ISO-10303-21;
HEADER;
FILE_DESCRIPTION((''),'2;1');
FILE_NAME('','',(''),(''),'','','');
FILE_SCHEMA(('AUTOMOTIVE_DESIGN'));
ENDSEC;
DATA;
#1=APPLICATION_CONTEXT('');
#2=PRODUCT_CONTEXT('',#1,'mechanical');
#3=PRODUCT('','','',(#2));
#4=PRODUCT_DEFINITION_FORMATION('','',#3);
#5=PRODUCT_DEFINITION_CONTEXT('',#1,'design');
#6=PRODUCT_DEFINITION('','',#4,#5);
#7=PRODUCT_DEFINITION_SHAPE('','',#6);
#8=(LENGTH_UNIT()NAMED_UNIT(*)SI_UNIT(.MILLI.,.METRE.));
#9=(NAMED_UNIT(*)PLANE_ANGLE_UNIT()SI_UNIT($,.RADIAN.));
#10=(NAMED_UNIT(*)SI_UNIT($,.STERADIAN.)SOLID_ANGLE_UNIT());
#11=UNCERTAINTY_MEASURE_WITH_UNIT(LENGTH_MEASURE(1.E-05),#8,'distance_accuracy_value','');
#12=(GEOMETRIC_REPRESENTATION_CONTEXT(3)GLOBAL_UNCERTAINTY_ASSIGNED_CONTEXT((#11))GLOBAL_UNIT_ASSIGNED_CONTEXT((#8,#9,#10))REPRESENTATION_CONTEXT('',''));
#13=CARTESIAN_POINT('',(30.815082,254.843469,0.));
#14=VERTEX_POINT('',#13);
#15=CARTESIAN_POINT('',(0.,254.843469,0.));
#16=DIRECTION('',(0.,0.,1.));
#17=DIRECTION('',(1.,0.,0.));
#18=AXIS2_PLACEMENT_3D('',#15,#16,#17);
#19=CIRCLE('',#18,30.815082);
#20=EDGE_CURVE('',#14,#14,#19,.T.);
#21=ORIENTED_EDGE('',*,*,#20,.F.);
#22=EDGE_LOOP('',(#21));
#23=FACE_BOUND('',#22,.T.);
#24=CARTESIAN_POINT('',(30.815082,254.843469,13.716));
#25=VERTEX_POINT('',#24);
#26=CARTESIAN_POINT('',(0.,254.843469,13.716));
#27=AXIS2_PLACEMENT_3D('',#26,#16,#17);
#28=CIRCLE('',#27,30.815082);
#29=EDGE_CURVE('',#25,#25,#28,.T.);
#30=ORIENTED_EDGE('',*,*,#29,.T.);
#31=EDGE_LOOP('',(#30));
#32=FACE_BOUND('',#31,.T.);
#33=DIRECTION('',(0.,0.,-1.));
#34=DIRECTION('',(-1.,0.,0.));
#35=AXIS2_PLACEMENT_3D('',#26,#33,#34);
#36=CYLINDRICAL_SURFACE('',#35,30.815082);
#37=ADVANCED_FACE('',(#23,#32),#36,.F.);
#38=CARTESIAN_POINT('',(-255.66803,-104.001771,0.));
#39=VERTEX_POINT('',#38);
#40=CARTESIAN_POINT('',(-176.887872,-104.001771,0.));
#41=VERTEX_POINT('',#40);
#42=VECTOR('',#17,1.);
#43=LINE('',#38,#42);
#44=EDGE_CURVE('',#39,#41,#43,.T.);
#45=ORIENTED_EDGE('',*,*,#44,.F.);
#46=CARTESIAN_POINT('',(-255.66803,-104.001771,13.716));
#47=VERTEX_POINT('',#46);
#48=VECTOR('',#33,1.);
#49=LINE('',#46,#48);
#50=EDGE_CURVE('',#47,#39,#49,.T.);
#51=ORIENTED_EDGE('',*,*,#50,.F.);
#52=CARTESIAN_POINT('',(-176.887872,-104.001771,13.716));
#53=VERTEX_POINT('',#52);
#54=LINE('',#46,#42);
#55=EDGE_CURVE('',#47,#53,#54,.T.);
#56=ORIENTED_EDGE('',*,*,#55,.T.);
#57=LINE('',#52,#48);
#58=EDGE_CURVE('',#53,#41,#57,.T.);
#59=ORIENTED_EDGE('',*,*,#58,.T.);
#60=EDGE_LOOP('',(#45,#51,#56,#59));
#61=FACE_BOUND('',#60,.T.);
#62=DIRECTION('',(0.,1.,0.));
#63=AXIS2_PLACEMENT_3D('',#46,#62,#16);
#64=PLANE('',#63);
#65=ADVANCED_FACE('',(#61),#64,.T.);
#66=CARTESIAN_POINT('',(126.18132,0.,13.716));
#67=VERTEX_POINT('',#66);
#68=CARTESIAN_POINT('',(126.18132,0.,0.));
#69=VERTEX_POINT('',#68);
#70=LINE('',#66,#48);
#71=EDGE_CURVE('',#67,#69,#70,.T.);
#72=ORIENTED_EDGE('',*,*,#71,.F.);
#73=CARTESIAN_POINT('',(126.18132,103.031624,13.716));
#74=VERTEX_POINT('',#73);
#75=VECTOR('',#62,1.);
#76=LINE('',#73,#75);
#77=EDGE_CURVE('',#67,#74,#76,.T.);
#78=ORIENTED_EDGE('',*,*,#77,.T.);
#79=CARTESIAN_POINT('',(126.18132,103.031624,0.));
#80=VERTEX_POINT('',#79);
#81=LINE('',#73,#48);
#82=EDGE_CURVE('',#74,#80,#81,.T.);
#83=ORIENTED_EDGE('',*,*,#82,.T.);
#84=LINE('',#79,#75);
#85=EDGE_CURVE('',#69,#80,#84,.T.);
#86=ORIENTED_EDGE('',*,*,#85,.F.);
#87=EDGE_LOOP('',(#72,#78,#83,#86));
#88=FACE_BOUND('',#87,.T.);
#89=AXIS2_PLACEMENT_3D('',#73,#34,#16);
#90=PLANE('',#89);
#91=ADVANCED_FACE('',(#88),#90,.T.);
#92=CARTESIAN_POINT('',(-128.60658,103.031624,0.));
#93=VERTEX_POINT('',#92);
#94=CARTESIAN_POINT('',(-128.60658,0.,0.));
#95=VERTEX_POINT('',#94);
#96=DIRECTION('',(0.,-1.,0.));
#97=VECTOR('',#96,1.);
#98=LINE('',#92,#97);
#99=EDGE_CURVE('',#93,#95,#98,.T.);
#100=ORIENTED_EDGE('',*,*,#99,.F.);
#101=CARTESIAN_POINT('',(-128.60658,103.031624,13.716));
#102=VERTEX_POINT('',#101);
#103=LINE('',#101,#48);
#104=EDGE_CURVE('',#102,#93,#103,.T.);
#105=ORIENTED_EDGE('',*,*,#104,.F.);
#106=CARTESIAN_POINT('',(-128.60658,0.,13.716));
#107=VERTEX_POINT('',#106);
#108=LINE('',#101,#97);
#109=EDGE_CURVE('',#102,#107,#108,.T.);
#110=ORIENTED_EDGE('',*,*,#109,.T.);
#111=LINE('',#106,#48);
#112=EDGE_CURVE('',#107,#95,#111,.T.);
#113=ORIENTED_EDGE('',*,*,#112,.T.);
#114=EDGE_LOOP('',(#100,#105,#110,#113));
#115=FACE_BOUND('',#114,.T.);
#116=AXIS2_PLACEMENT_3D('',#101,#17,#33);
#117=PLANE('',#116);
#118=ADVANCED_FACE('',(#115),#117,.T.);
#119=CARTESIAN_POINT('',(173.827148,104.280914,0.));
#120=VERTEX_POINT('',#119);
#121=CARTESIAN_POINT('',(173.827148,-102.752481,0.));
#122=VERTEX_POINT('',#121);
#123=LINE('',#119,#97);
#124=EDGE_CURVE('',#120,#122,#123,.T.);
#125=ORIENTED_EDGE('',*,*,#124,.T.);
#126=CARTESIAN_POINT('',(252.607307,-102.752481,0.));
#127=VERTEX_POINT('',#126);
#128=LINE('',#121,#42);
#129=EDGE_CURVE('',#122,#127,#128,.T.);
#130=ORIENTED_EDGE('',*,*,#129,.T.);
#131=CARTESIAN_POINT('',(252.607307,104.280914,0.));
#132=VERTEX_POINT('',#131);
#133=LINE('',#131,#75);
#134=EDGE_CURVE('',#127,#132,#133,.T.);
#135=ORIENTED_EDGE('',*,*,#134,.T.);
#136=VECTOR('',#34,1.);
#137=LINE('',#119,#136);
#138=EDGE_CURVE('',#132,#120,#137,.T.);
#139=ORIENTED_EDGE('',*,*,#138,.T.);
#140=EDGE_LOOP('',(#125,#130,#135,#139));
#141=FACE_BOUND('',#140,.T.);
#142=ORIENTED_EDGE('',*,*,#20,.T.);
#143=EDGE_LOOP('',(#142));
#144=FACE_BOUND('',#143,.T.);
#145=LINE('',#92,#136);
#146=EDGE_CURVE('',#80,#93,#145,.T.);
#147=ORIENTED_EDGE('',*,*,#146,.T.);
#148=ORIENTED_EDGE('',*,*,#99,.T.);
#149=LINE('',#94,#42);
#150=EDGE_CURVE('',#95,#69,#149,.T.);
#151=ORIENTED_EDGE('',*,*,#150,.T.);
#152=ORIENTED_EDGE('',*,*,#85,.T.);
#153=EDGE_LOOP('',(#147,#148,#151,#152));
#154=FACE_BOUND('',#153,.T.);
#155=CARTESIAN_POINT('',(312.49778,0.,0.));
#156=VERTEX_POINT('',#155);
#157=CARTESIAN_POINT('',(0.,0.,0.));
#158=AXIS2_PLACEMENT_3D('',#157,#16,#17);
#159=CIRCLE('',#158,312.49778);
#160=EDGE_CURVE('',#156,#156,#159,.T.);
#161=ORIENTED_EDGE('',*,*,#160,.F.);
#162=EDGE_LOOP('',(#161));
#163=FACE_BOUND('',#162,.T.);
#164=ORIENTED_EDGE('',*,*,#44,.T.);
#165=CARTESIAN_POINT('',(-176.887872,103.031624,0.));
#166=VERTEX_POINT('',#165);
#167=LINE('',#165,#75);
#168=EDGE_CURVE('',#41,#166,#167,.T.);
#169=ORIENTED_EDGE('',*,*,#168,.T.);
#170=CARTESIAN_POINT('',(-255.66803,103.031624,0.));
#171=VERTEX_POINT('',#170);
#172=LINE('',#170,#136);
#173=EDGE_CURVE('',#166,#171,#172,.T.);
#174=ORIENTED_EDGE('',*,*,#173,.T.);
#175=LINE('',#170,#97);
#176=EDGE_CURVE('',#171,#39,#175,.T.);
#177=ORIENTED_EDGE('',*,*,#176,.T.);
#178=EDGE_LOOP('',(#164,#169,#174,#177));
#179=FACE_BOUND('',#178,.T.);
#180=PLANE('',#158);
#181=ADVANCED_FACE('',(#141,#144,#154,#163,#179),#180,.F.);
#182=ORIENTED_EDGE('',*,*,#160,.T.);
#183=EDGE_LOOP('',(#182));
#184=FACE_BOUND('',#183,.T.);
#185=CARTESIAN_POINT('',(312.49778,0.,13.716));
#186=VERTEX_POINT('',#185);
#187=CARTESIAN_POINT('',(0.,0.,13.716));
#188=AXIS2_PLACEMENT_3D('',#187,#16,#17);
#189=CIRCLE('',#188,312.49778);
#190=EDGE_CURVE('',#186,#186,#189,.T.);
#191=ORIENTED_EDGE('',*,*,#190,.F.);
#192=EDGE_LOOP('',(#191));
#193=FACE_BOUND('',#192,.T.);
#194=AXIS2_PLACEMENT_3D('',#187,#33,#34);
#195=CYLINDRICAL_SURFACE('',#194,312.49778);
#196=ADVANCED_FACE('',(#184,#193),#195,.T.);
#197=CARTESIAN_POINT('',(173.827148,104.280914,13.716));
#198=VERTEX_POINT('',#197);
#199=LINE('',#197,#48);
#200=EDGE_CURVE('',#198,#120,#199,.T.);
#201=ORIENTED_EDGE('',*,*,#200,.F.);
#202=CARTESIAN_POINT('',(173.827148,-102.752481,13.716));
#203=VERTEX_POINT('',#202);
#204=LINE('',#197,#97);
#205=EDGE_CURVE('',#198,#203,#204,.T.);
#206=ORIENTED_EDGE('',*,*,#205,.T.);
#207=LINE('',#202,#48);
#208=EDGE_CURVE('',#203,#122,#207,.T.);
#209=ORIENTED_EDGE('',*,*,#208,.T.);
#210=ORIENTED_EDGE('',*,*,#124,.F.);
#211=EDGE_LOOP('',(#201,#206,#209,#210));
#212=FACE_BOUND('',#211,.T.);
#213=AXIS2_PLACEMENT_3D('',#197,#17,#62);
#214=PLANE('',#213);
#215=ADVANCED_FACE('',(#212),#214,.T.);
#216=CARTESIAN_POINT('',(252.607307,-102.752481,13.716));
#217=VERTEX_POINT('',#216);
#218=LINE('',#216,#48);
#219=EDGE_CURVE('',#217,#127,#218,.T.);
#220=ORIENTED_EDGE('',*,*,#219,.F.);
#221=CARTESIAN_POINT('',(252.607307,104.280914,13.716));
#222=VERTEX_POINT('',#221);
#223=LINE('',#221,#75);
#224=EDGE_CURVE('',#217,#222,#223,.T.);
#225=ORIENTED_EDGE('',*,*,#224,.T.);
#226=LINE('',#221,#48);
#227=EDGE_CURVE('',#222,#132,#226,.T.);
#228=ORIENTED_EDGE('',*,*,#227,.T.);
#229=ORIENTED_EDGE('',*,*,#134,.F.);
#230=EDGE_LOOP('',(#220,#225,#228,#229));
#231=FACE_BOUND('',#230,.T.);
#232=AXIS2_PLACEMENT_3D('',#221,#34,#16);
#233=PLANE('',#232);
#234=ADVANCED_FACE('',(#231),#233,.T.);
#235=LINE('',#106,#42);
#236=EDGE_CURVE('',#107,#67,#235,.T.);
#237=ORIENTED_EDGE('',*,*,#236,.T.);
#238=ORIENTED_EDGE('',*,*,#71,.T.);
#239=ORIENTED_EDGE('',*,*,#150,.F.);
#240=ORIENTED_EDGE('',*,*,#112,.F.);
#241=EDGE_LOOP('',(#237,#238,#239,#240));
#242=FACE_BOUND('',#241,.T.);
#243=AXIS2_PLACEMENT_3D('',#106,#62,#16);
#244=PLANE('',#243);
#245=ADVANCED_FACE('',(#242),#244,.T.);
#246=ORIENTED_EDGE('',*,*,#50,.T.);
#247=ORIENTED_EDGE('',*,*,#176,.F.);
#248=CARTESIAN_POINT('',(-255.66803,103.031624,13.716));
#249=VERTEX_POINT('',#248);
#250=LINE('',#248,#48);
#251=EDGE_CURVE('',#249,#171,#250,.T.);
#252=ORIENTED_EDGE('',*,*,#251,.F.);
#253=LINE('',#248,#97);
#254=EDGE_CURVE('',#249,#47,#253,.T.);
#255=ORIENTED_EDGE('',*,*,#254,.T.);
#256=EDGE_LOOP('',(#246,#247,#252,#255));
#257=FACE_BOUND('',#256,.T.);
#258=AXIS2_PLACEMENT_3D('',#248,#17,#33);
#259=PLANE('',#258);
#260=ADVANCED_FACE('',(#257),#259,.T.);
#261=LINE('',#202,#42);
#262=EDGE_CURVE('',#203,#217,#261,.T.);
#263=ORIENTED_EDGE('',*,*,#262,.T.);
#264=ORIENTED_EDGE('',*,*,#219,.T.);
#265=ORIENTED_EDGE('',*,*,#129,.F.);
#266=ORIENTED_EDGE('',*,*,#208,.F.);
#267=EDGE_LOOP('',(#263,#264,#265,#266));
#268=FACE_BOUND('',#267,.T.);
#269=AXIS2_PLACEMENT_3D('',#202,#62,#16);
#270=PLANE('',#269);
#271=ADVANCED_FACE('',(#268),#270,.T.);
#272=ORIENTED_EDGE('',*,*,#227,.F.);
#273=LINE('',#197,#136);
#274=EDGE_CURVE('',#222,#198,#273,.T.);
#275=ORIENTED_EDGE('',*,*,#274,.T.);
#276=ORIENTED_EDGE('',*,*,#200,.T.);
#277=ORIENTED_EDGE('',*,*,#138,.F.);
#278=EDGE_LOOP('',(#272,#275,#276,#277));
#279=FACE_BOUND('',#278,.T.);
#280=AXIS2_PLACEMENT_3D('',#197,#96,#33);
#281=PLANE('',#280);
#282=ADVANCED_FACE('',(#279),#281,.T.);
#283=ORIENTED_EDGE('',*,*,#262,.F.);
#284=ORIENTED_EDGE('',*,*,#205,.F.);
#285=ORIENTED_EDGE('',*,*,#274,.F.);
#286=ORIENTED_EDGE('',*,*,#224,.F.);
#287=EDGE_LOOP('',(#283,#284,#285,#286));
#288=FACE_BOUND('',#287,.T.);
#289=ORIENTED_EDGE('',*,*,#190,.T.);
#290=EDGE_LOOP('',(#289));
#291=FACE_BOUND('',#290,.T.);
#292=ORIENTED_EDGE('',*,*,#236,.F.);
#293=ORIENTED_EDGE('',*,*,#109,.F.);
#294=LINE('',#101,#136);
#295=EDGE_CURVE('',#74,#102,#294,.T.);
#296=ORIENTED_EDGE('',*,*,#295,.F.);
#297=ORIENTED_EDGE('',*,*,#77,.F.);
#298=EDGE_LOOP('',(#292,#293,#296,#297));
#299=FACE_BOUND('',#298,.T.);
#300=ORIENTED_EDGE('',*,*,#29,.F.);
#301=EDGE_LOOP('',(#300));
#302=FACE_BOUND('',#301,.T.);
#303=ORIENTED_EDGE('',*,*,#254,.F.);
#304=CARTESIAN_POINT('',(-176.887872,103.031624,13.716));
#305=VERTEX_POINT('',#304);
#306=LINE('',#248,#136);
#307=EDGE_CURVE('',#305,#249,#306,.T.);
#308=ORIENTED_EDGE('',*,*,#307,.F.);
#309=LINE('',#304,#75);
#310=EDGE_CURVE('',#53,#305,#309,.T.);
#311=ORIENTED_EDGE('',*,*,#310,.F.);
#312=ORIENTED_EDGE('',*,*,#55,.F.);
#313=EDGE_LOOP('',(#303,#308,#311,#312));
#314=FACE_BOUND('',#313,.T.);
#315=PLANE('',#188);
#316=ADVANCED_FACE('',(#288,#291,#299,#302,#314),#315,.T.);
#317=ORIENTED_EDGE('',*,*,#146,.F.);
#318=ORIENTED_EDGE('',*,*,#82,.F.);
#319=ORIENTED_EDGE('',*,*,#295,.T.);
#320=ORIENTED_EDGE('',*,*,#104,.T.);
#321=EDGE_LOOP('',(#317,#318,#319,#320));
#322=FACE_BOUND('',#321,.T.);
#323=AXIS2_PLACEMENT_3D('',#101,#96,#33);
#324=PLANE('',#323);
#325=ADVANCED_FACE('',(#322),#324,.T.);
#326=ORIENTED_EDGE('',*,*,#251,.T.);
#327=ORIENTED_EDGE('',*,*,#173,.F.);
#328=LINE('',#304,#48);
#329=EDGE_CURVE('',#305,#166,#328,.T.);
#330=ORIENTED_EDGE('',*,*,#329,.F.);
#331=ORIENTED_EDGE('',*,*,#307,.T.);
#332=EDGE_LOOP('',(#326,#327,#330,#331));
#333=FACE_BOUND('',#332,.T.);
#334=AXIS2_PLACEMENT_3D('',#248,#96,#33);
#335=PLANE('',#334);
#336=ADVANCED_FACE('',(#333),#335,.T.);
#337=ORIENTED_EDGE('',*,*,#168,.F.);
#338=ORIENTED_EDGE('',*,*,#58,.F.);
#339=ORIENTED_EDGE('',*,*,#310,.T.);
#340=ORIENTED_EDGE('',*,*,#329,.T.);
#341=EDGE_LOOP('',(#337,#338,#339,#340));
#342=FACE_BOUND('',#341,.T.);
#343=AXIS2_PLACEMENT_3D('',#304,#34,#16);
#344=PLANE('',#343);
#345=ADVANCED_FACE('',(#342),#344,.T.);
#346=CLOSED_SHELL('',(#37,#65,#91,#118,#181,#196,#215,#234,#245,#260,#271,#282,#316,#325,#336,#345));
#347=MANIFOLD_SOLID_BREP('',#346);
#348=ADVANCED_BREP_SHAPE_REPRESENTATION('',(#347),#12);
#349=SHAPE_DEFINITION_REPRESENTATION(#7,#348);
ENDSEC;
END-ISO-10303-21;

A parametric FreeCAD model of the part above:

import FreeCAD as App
import Part
import Sketcher
from FreeCAD import Vector
Q = App.Units.Quantity

doc = App.newDocument("Part")
body = doc.addObject("PartDesign::Body", "Body")

sketch1 = body.newObject("Sketcher::SketchObject", "Sketch")
sketch1.AttachmentSupport = (doc.getObject("XY_Plane"), [""])
sketch1.MapMode = "FlatFace"
sketch1.addGeometry([
    Part.Circle(Vector(0, 0, 0), Vector(0, 0, 1), 312.49778),
    Part.LineSegment(Vector(-176.887872, -104.001771, 0), Vector(-255.66803, -104.001771, 0)),
    Part.LineSegment(Vector(-255.66803, -104.001771, 0), Vector(-255.66803, 103.031624, 0)),
    Part.LineSegment(Vector(-255.66803, 103.031624, 0), Vector(-176.887872, 103.031624, 0)),
    Part.LineSegment(Vector(-176.887872, 103.031624, 0), Vector(-176.887872, -104.001771, 0)),
    Part.LineSegment(Vector(126.18132, 0, 0), Vector(-128.60658, 0, 0)),
    Part.LineSegment(Vector(-128.60658, 0, 0), Vector(-128.60658, 103.031624, 0)),
    Part.LineSegment(Vector(-128.60658, 103.031624, 0), Vector(126.18132, 103.031624, 0)),
    Part.LineSegment(Vector(126.18132, 103.031624, 0), Vector(126.18132, 0, 0)),
    Part.LineSegment(Vector(252.607307, -102.752481, 0), Vector(173.827148, -102.752481, 0)),
    Part.LineSegment(Vector(173.827148, -102.752481, 0), Vector(173.827148, 104.280914, 0)),
    Part.LineSegment(Vector(173.827148, 104.280914, 0), Vector(252.607307, 104.280914, 0)),
    Part.LineSegment(Vector(252.607307, 104.280914, 0), Vector(252.607307, -102.752481, 0)),
    Part.Circle(Vector(0, 254.843469, 0), Vector(0, 0, 1), 30.815082),
], False)
sketch1.addConstraint([
    Sketcher.Constraint("Coincident", 1, 2, 2, 1),
    Sketcher.Constraint("Coincident", 2, 2, 3, 1),
    Sketcher.Constraint("Coincident", 3, 2, 4, 1),
    Sketcher.Constraint("Coincident", 4, 2, 1, 1),
    Sketcher.Constraint("Coincident", 5, 2, 6, 1),
    Sketcher.Constraint("Coincident", 6, 2, 7, 1),
    Sketcher.Constraint("Coincident", 7, 2, 8, 1),
    Sketcher.Constraint("Coincident", 8, 2, 5, 1),
    Sketcher.Constraint("Coincident", 9, 2, 10, 1),
    Sketcher.Constraint("Coincident", 10, 2, 11, 1),
    Sketcher.Constraint("Coincident", 11, 2, 12, 1),
    Sketcher.Constraint("Coincident", 12, 2, 9, 1),
    Sketcher.Constraint("Horizontal", 1),
    Sketcher.Constraint("Vertical", 2),
    Sketcher.Constraint("Horizontal", 3),
    Sketcher.Constraint("Vertical", 4),
    Sketcher.Constraint("Horizontal", 5),
    Sketcher.Constraint("Vertical", 6),
    Sketcher.Constraint("Horizontal", 7),
    Sketcher.Constraint("Vertical", 8),
    Sketcher.Constraint("Horizontal", 9),
    Sketcher.Constraint("Vertical", 10),
    Sketcher.Constraint("Horizontal", 11),
    Sketcher.Constraint("Vertical", 12),
    Sketcher.Constraint("Coincident", 0, 3, -1, 1),
    Sketcher.Constraint("PointOnObject", 13, 3, -2),
    Sketcher.Constraint("PointOnObject", 5, 2, -1),
    Sketcher.Constraint("Horizontal", 3, 2, 6, 2),
    Sketcher.Constraint("Equal", 3, 9),
    Sketcher.Constraint("Equal", 4, 10),
    Sketcher.Constraint("Diameter", 0, 624.995561),
    Sketcher.Constraint("Diameter", 13, 61.630164),
    Sketcher.Constraint("DistanceX", 5, 2, 5, 1, 254.787899),
    Sketcher.Constraint("DistanceX", 1, 2, 1, 1, 78.780159),
    Sketcher.Constraint("DistanceY", 2, 1, 2, 2, 207.033394),
    Sketcher.Constraint("DistanceY", 6, 1, 6, 2, 103.031624),
    Sketcher.Constraint("DistanceY", -1, 1, 13, 3, 254.843469),
    Sketcher.Constraint("DistanceX", 1, 2, -1, 1, 255.66803),
    Sketcher.Constraint("DistanceX", 5, 2, -1, 1, 128.60658),
    Sketcher.Constraint("DistanceY", 9, 2, -1, 1, 102.752481),
    Sketcher.Constraint("DistanceX", 4, 2, 9, 2, 350.715019),
])
pad1 = body.newObject("PartDesign::Pad", "Pad")
pad1.Profile = sketch1
pad1.Length = Q("0.54 in")

doc.recompute()
